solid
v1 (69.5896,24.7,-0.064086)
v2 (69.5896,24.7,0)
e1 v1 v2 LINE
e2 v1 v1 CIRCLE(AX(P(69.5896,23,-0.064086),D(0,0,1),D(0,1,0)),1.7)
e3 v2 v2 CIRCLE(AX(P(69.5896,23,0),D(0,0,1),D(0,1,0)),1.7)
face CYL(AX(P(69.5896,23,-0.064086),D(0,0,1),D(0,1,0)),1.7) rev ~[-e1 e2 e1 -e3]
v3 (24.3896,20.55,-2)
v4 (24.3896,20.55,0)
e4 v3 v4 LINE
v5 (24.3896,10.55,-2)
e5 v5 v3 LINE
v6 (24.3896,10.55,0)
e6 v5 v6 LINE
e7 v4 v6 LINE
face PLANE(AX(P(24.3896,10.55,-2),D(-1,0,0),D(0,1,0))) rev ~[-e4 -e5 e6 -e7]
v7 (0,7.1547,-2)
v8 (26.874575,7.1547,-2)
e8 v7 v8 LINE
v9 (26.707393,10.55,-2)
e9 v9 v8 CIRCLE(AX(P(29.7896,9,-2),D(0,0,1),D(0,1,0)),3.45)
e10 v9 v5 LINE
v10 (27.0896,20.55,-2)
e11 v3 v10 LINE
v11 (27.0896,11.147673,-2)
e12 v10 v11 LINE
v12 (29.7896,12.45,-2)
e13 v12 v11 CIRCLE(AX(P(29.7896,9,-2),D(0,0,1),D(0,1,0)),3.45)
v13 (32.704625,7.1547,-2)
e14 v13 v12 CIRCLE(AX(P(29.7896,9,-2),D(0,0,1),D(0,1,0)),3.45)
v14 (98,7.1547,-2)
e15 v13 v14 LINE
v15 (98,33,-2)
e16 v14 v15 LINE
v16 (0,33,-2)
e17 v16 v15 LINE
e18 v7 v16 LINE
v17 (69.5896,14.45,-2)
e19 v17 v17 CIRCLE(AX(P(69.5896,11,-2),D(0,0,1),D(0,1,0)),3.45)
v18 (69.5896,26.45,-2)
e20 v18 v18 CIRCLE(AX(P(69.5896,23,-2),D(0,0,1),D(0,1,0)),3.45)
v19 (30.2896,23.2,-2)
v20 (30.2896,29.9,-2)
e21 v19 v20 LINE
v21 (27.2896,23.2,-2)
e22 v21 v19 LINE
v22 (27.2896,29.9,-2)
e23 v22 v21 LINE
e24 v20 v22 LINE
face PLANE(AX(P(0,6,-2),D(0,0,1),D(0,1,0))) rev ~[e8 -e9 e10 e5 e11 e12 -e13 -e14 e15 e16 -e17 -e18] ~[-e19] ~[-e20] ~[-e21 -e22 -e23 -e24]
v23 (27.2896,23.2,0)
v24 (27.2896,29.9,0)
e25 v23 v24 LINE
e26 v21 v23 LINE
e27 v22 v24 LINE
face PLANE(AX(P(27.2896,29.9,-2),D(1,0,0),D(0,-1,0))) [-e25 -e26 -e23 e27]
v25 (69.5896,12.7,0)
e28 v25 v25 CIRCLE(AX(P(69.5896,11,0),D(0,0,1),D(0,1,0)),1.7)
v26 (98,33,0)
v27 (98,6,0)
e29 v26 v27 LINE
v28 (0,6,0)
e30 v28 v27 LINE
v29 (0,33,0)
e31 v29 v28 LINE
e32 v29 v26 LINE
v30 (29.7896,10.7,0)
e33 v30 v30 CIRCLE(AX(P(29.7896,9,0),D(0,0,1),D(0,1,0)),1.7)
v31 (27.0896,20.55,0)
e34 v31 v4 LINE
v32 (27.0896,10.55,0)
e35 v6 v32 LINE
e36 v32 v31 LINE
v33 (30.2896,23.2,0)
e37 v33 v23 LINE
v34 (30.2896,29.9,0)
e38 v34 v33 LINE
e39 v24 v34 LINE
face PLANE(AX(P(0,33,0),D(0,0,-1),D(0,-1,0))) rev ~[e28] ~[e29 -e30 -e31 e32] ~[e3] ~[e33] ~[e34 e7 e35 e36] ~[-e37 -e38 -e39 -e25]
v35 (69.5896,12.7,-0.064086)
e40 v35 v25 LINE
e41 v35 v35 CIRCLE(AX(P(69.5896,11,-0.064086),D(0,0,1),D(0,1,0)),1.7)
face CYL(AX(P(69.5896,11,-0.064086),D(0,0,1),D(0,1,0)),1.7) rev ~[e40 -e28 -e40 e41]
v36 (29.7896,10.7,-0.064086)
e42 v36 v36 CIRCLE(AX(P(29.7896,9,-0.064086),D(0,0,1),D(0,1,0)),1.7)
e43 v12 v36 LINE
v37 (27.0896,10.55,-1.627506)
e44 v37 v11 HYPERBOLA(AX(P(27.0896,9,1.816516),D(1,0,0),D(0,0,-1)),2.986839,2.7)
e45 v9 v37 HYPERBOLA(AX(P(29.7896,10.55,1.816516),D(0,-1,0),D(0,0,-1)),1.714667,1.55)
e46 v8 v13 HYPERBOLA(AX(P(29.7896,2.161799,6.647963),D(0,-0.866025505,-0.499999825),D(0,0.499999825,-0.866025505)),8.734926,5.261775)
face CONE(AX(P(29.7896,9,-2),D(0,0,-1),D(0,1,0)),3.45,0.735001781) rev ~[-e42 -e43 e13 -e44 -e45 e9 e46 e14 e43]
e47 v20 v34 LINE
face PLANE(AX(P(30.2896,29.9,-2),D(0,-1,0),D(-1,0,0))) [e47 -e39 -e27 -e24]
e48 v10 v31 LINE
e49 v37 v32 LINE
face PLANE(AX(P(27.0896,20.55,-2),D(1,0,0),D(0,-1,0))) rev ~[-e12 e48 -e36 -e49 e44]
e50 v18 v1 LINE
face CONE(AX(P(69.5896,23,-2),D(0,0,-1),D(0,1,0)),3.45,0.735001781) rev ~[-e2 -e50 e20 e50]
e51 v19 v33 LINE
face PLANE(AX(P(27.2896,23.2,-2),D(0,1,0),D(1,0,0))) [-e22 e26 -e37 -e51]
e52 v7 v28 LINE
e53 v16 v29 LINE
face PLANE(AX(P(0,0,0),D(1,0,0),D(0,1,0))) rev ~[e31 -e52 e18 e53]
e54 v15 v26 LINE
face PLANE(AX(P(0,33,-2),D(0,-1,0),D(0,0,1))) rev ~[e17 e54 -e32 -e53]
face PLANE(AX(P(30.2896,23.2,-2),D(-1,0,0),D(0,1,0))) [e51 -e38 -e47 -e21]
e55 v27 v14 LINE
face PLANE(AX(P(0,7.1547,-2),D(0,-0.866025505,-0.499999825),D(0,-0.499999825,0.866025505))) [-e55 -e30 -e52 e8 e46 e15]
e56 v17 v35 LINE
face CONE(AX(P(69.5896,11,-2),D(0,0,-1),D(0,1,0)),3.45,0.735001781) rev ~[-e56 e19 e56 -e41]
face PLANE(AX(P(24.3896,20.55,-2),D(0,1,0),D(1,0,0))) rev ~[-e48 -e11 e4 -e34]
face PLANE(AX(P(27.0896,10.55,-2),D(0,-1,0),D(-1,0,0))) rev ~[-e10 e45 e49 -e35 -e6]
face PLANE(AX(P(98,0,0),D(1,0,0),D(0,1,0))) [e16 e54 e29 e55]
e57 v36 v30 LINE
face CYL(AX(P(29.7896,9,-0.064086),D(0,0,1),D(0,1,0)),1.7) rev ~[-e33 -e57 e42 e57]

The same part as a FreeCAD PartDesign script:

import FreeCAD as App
import Part
import Sketcher

V = App.Vector
Q = App.Units.Quantity


def add_polygon(sketch, points):
    """Adds a closed chain of lines whose ends are joined by coincident constraints."""
    first, n = sketch.GeometryCount, len(points)
    for a, b in zip(points, points[1:] + points[:1]):
        sketch.addGeometry(Part.LineSegment(App.Vector(*a, 0), App.Vector(*b, 0)), False)
    for i in range(n):
        sketch.addConstraint(Sketcher.Constraint("Coincident", first + i, 2, first + (i + 1) % n, 1))

doc = App.newDocument("Part")
body = doc.addObject("PartDesign::Body", "Body")

# Sketch on YZ plane
sketch1 = doc.addObject("Sketcher::SketchObject", "Sketch")
body.addObject(sketch1)
sketch1.AttachmentSupport = (doc.YZ_Plane, [""])
sketch1.MapMode = "FlatFace"
add_polygon(sketch1, [(33, 0), (6, 0), (6, -2), (33, -2)])  # lines 0-3
sketch1.addConstraint([
    Sketcher.Constraint("Horizontal", 0),
    Sketcher.Constraint("Vertical", 1),
    Sketcher.Constraint("Horizontal", 2),
    Sketcher.Constraint("Vertical", 3),
    Sketcher.Constraint("PointOnObject", 0, 2, -1),
    Sketcher.Constraint("DistanceY", 1, 2, 1, 1, 2.0),
    Sketcher.Constraint("DistanceX", 0, 2, 0, 1, 27.0),
    Sketcher.Constraint("DistanceX", -1, 1, 0, 2, 6.0),
])
pad1 = doc.addObject("PartDesign::Pad", "Pad")
body.addObject(pad1)
pad1.Profile = sketch1
pad1.Length = 98

# Sketch on XY plane
sketch2 = doc.addObject("Sketcher::SketchObject", "Sketch001")
body.addObject(sketch2)
sketch2.AttachmentSupport = (doc.XY_Plane, [""])
sketch2.MapMode = "FlatFace"
sketch2.AttachmentOffset = App.Placement(V(0, 0, -2), App.Rotation())
sketch2.addGeometry([
    Part.Circle(V(69.6, 23, 0), V(0, 0, 1), 1.7),
    Part.Circle(V(69.6, 11, 0), V(0, 0, 1), 1.7),
    Part.Circle(V(29.8, 9, 0), V(0, 0, 1), 1.7),
], False)
sketch2.addConstraint([
    Sketcher.Constraint("Equal", 0, 1),
    Sketcher.Constraint("Equal", 1, 2),
    Sketcher.Constraint("Vertical", 0, 3, 1, 3),
    Sketcher.Constraint("Diameter", 0, 3.4),
    Sketcher.Constraint("DistanceY", -1, 1, 0, 3, 23.0),
    Sketcher.Constraint("DistanceY", -1, 1, 1, 3, 11.0),
    Sketcher.Constraint("DistanceY", -1, 1, 2, 3, 9.0),
    Sketcher.Constraint("DistanceX", 2, 3, 1, 3, 39.8),
    Sketcher.Constraint("DistanceX", -1, 1, 0, 3, 69.5896),
])
doc.recompute()
hole = doc.addObject("PartDesign::Hole", "Hole")
body.addObject(hole)
hole.Profile = sketch2
hole.ThreadType = "None"
hole.Diameter = 3.4
hole.DepthType = "Dimension"
hole.Depth = 5.5
hole.DrillPoint = "Angled"
hole.DrillPointAngle = 118
hole.HoleCutType = "Countersink"
hole.HoleCutDiameter = 6.9
hole.HoleCutCountersinkAngle = 84.225
hole.Reversed = True

# Sketch on XY plane
sketch3 = doc.addObject("Sketcher::SketchObject", "Sketch002")
body.addObject(sketch3)
sketch3.AttachmentSupport = (doc.XY_Plane, [""])
sketch3.MapMode = "FlatFace"
sketch3.AttachmentOffset = App.Placement(V(0, 0, -2), App.Rotation())
add_polygon(sketch3, [(27.1, 20.6), (27.1, 10.6), (24.4, 10.6), (24.4, 20.6)])  # lines 0-3
add_polygon(sketch3, [(27.3, 29.9), (30.3, 29.9), (30.3, 23.2), (27.3, 23.2)])  # lines 4-7
sketch3.addConstraint([
    Sketcher.Constraint("Vertical", 0),
    Sketcher.Constraint("Horizontal", 1),
    Sketcher.Constraint("Vertical", 2),
    Sketcher.Constraint("Horizontal", 3),
    Sketcher.Constraint("Horizontal", 4),
    Sketcher.Constraint("Vertical", 5),
    Sketcher.Constraint("Horizontal", 6),
    Sketcher.Constraint("Vertical", 7),
    Sketcher.Constraint("DistanceX", 4, 1, 4, 2, 3.0),
    Sketcher.Constraint("DistanceY", 0, 2, 0, 1, 10.0),
    Sketcher.Constraint("DistanceX", 1, 2, 1, 1, 2.7),
    Sketcher.Constraint("DistanceY", 5, 2, 5, 1, 6.7),
    Sketcher.Constraint("DistanceY", -1, 1, 4, 2, 29.9),
    Sketcher.Constraint("DistanceX", 3, 2, 4, 2, 3.2),
    Sketcher.Constraint("DistanceY", -1, 1, 0, 2, 10.55),
    Sketcher.Constraint("DistanceX", -1, 1, 0, 2, 27.0896),
])
pocket1 = doc.addObject("PartDesign::Pocket", "Pocket")
body.addObject(pocket1)
pocket1.Profile = sketch3
pocket1.Type = "UpToFirst"
pocket1.Reversed = True

# Sketch on YZ plane
sketch4 = doc.addObject("Sketcher::SketchObject", "Sketch003")
body.addObject(sketch4)
sketch4.AttachmentSupport = (doc.YZ_Plane, [""])
sketch4.MapMode = "FlatFace"
add_polygon(sketch4, [(7.2, -2), (6, -2), (6, 0)])  # lines 0-2
sketch4.addConstraint([
    Sketcher.Constraint("Horizontal", 0),
    Sketcher.Constraint("Vertical", 1),
    Sketcher.Constraint("PointOnObject", 1, 2, -1),
    Sketcher.Constraint("DistanceY", 1, 1, 1, 2, 2.0),
    Sketcher.Constraint("Angle", 2, Q("-60 deg")),
    Sketcher.Constraint("DistanceX", -1, 1, 0, 2, 6.0),
])
pocket2 = doc.addObject("PartDesign::Pocket", "Pocket001")
body.addObject(pocket2)
pocket2.Profile = sketch4
pocket2.Type = "ThroughAll"
pocket2.Reversed = True

doc.recompute()
